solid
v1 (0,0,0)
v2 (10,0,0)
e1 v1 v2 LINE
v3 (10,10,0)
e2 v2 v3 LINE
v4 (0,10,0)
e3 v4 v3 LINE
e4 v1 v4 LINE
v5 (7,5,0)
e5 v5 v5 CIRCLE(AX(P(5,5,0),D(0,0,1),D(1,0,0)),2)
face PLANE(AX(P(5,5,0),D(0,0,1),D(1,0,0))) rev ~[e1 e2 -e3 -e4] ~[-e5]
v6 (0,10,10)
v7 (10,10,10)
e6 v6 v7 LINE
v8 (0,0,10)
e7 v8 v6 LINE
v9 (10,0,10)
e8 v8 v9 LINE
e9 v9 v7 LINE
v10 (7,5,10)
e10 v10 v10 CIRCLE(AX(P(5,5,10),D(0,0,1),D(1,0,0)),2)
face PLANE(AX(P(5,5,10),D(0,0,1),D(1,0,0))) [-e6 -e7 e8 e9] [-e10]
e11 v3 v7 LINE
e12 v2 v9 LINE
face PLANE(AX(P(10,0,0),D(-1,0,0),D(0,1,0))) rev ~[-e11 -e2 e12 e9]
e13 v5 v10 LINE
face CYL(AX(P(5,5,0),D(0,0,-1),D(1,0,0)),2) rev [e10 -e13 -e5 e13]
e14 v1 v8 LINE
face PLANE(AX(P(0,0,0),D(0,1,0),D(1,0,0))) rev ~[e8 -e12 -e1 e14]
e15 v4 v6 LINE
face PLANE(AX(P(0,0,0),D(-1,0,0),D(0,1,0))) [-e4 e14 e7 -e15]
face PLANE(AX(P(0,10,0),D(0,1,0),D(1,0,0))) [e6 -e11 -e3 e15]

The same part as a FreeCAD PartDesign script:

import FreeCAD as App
import Part
import Sketcher
from FreeCAD import Vector
Q = App.Units.Quantity

doc = App.newDocument("Part")
params = doc.addObject("Spreadsheet::Sheet", "Params")
for row, (alias, value) in enumerate([
    ("sketch1_diameter", "4 mm"),
    ("pad1_length", "10 mm"),
    ("sketch2_width", "10 mm"),
    ("pad2_length", "10 mm"),
], start=1):
    params.set(f"A{row}", alias)
    params.set(f"B{row}", "=" + value)
    params.setAlias(f"B{row}", alias)

body = doc.addObject("PartDesign::Body", "Body")

sketch1 = doc.addObject("Sketcher::SketchObject", "Sketch")
body.addObject(sketch1)
sketch1.AttachmentSupport = (doc.XY_Plane, [""])
sketch1.MapMode = "FlatFace"
sketch1.addGeometry(Part.Circle(Vector(5, 5, 0), Vector(0, 0, 1), 2), False)
sketch1.addConstraint([
    Sketcher.Constraint("Diameter", 0, Q("4 mm")),
    Sketcher.Constraint("DistanceX", -1, 1, 0, 3, Q("5 mm")),
    Sketcher.Constraint("DistanceY", -1, 1, 0, 3, Q("5 mm")),
])
sketch1.setExpression("Constraints[0]", "Params.sketch1_diameter")
pad1 = doc.addObject("PartDesign::Pad", "Pad")
body.addObject(pad1)
pad1.Profile = sketch1
pad1.setExpression("Length", "Params.pad1_length")
body2 = doc.addObject("PartDesign::Body", "Body001")

sketch2 = doc.addObject("Sketcher::SketchObject", "Sketch001")
body2.addObject(sketch2)
sketch2.AttachmentSupport = (doc.getObject("XY_Plane001"), [""])
sketch2.MapMode = "FlatFace"
sketch2.addGeometry([
    Part.LineSegment(Vector(0, 10, 0), Vector(0, 0, 0)),
    Part.LineSegment(Vector(0, 0, 0), Vector(10, 0, 0)),
    Part.LineSegment(Vector(10, 0, 0), Vector(10, 10, 0)),
    Part.LineSegment(Vector(10, 10, 0), Vector(0, 10, 0)),
], False)
sketch2.addConstraint([
    Sketcher.Constraint("Coincident", 0, 2, 1, 1),
    Sketcher.Constraint("Coincident", 1, 2, 2, 1),
    Sketcher.Constraint("Coincident", 2, 2, 3, 1),
    Sketcher.Constraint("Coincident", 3, 2, 0, 1),
    Sketcher.Constraint("Vertical", 0),
    Sketcher.Constraint("Horizontal", 1),
    Sketcher.Constraint("Vertical", 2),
    Sketcher.Constraint("Horizontal", 3),
    Sketcher.Constraint("Coincident", 0, 2, -1, 1),
    Sketcher.Constraint("Equal", 3, 0),
    Sketcher.Constraint("DistanceX", 1, 1, 1, 2, Q("10 mm")),
])
sketch2.setExpression("Constraints[10]", "Params.sketch2_width")
pad2 = doc.addObject("PartDesign::Pad", "Pad001")
body2.addObject(pad2)
pad2.Profile = sketch2
pad2.setExpression("Length", "Params.pad2_length")
doc.recompute()

boolean = doc.addObject("PartDesign::Boolean", "Boolean")
body2.addObject(boolean)
boolean.Type = "Cut"
boolean.addObjects([body])

doc.recompute()
